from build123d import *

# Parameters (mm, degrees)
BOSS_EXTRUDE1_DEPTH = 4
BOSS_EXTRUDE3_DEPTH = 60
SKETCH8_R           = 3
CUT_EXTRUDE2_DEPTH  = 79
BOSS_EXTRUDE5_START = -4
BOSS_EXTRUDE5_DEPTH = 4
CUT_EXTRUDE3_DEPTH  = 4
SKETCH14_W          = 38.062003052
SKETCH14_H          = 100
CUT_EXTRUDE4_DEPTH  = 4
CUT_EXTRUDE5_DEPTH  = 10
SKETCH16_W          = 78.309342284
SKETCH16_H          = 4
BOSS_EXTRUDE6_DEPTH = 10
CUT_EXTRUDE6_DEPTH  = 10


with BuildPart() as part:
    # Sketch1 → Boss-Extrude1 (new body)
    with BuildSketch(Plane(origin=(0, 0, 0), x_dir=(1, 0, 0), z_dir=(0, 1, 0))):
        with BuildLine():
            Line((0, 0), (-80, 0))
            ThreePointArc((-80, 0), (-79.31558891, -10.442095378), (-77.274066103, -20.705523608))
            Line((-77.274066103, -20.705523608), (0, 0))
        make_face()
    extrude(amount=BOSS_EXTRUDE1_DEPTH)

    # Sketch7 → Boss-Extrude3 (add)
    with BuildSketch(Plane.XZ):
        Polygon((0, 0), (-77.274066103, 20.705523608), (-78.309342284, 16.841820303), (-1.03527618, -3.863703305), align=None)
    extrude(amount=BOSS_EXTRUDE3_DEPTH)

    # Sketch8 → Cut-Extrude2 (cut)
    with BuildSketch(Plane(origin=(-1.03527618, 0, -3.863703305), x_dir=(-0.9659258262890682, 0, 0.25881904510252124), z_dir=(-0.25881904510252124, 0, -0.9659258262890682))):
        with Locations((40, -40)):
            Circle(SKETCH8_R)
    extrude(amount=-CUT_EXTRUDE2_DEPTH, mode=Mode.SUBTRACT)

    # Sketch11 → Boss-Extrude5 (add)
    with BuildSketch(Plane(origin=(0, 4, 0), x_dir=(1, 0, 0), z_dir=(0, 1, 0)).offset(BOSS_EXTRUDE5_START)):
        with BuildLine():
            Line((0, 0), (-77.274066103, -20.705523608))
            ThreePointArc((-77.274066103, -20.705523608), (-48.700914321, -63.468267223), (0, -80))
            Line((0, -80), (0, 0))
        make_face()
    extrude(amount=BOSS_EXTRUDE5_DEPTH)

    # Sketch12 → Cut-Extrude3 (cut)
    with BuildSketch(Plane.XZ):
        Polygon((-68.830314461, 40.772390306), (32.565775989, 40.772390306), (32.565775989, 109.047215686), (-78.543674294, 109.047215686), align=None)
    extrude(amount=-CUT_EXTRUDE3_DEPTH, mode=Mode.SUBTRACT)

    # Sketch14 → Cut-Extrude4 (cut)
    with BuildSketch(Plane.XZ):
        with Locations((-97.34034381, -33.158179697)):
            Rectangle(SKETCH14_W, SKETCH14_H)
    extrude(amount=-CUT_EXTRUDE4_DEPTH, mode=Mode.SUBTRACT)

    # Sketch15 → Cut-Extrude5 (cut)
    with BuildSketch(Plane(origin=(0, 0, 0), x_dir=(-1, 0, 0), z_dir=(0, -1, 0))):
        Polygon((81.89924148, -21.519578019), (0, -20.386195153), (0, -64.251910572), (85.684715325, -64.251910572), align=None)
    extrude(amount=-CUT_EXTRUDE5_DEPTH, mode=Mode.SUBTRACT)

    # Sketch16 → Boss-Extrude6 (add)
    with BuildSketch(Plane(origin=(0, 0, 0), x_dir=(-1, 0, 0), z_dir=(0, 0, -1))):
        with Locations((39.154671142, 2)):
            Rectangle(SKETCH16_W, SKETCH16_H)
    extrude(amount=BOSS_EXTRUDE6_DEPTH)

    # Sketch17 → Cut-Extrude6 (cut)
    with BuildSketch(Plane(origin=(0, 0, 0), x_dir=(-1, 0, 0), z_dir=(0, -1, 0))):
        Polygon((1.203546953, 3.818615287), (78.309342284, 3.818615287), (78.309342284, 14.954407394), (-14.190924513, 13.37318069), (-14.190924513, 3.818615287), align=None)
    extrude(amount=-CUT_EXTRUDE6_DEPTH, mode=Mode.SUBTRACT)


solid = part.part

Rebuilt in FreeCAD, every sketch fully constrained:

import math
import FreeCAD as App
import Part
import Sketcher
Q = App.Units.Quantity

doc = App.newDocument("Part")
params = doc.addObject("Spreadsheet::Sheet", "Params")
for row, (alias, value) in enumerate([
    ("sketch1_radius", "80 mm"),
    ("pad1_length", "4 mm"),
    ("sketch2_length", "80 mm"),
    ("sketch2_length2", "4 mm"),
    ("pad2_length", "60 mm"),
    ("sketch3_diameter", "6 mm"),
    ("pocket1_length", "79 mm"),
    ("sketch4_radius", "80 mm"),
    ("pad3_length", "4 mm"),
    ("pocket2_length", "4 mm"),
    ("sketch6_height", "100 mm"),
    ("pocket3_length", "4 mm"),
    ("pocket4_length", "10 mm"),
    ("sketch8_height", "4 mm"),
    ("pad4_length", "10 mm"),
    ("pocket5_length", "10 mm"),
], start=1):
    params.set(f"A{row}", alias)
    params.set(f"B{row}", "=" + value)
    params.setAlias(f"B{row}", alias)

body = doc.addObject("PartDesign::Body", "Body")

sketch1 = doc.addObject("Sketcher::SketchObject", "Sketch")
body.addObject(sketch1)
sketch1.AttachmentSupport = (doc.XZ_Plane, [""])
sketch1.MapMode = "FlatFace"
sketch1.addGeometry([
    Part.LineSegment(App.Vector(0, 0, 0), App.Vector(-80, 0, 0)),
    Part.ArcOfCircle(Part.Circle(App.Vector(0, 0, 0), App.Vector(0, 0, 1), 80), math.radians(165), math.radians(180)),
    Part.LineSegment(App.Vector(-77.274066, 20.705524, 0), App.Vector(0, 0, 0)),
], False)
sketch1.addConstraint([
    Sketcher.Constraint("Coincident", 0, 2, 1, 2),
    Sketcher.Constraint("Coincident", 1, 1, 2, 1),
    Sketcher.Constraint("Coincident", 2, 2, 0, 1),
    Sketcher.Constraint("Horizontal", 0),
    Sketcher.Constraint("Coincident", 1, 3, -1, 1),
    Sketcher.Constraint("Coincident", 2, 2, -1, 1),
    Sketcher.Constraint("Radius", 1, 80.0),
    Sketcher.Constraint("Angle", 2, Q("-15 deg")),
])
sketch1.setExpression("Constraints[6]", "Params.sketch1_radius")
pad1 = doc.addObject("PartDesign::Pad", "Pad")
body.addObject(pad1)
pad1.Profile = sketch1
pad1.setExpression("Length", "Params.pad1_length")
pad1.Reversed = True

sketch2 = doc.addObject("Sketcher::SketchObject", "Sketch001")
body.addObject(sketch2)
sketch2.AttachmentSupport = (doc.XZ_Plane, [""])
sketch2.MapMode = "FlatFace"
sketch2.addGeometry([
    Part.LineSegment(App.Vector(0, 0, 0), App.Vector(-77.274066, 20.705524, 0)),
    Part.LineSegment(App.Vector(-77.274066, 20.705524, 0), App.Vector(-78.309342, 16.84182, 0)),
    Part.LineSegment(App.Vector(-78.309342, 16.84182, 0), App.Vector(-1.035276, -3.863703, 0)),
    Part.LineSegment(App.Vector(-1.035276, -3.863703, 0), App.Vector(0, 0, 0)),
], False)
sketch2.addConstraint([
    Sketcher.Constraint("Coincident", 0, 2, 1, 1),
    Sketcher.Constraint("Coincident", 1, 2, 2, 1),
    Sketcher.Constraint("Coincident", 2, 2, 3, 1),
    Sketcher.Constraint("Coincident", 3, 2, 0, 1),
    Sketcher.Constraint("Coincident", 3, 2, -1, 1),
    Sketcher.Constraint("Perpendicular", 0, 1),
    Sketcher.Constraint("Perpendicular", 1, 2),
    Sketcher.Constraint("Perpendicular", 2, 3),
    Sketcher.Constraint("Angle", 0, Q("165 deg")),
    Sketcher.Constraint("Distance", 0, 80.0),
    Sketcher.Constraint("Distance", 1, 4.0),
])
sketch2.setExpression("Constraints[9]", "Params.sketch2_length")
sketch2.setExpression("Constraints[10]", "Params.sketch2_length2")
pad2 = doc.addObject("PartDesign::Pad", "Pad001")
body.addObject(pad2)
pad2.Profile = sketch2
pad2.setExpression("Length", "Params.pad2_length")

sketch3 = doc.addObject("Sketcher::SketchObject", "Sketch002")
body.addObject(sketch3)
sketch3.Placement = App.Placement(App.Vector(-1.035276, 0, -3.863703), App.Rotation(App.Vector(-0.965925826, 0, 0.258819045), App.Vector(0, 0.999999999, 0), App.Vector(-0.258819045, 0, -0.965925826), "ZXY"))
sketch3.addGeometry(Part.Circle(App.Vector(40, -40, 0), App.Vector(0, 0, 1), 3), False)
sketch3.addConstraint([
    Sketcher.Constraint("Diameter", 0, 6.0),
    Sketcher.Constraint("DistanceX", -1, 1, 0, 3, 40.0),
    Sketcher.Constraint("DistanceY", 0, 3, -1, 1, 40.0),
])
sketch3.setExpression("Constraints[0]", "Params.sketch3_diameter")
pocket1 = doc.addObject("PartDesign::Pocket", "Pocket")
body.addObject(pocket1)
pocket1.Profile = sketch3
pocket1.setExpression("Length", "Params.pocket1_length")

sketch4 = doc.addObject("Sketcher::SketchObject", "Sketch003")
body.addObject(sketch4)
sketch4.AttachmentSupport = (doc.XZ_Plane, [""])
sketch4.MapMode = "FlatFace"
sketch4.addGeometry([
    Part.LineSegment(App.Vector(0, 0, 0), App.Vector(-77.274066, 20.705524, 0)),
    Part.ArcOfCircle(Part.Circle(App.Vector(0, 0, 0), App.Vector(0, 0, 1), 80), math.radians(90), math.radians(165)),
    Part.LineSegment(App.Vector(0, 80, 0), App.Vector(0, 0, 0)),
], False)
sketch4.addConstraint([
    Sketcher.Constraint("Coincident", 0, 2, 1, 2),
    Sketcher.Constraint("Coincident", 1, 1, 2, 1),
    Sketcher.Constraint("Coincident", 2, 2, 0, 1),
    Sketcher.Constraint("Vertical", 2),
    Sketcher.Constraint("Coincident", 1, 3, -1, 1),
    Sketcher.Constraint("Coincident", 2, 2, -1, 1),
    Sketcher.Constraint("Radius", 1, 80.0),
    Sketcher.Constraint("Angle", 0, Q("165 deg")),
])
sketch4.setExpression("Constraints[6]", "Params.sketch4_radius")
pad3 = doc.addObject("PartDesign::Pad", "Pad002")
body.addObject(pad3)
pad3.Profile = sketch4
pad3.setExpression("Length", "Params.pad3_length")
pad3.Reversed = True

sketch5 = doc.addObject("Sketcher::SketchObject", "Sketch004")
body.addObject(sketch5)
sketch5.AttachmentSupport = (doc.XZ_Plane, [""])
sketch5.MapMode = "FlatFace"
sketch5.addGeometry([
    Part.LineSegment(App.Vector(-68.830314, 40.77239, 0), App.Vector(32.565776, 40.77239, 0)),
    Part.LineSegment(App.Vector(32.565776, 40.77239, 0), App.Vector(32.565776, 109.047216, 0)),
    Part.LineSegment(App.Vector(32.565776, 109.047216, 0), App.Vector(-78.543674, 109.047216, 0)),
    Part.LineSegment(App.Vector(-78.543674, 109.047216, 0), App.Vector(-68.830314, 40.77239, 0)),
], False)
sketch5.addConstraint([
    Sketcher.Constraint("Coincident", 0, 2, 1, 1),
    Sketcher.Constraint("Coincident", 1, 2, 2, 1),
    Sketcher.Constraint("Coincident", 2, 2, 3, 1),
    Sketcher.Constraint("Coincident", 3, 2, 0, 1),
    Sketcher.Constraint("Horizontal", 0),
    Sketcher.Constraint("Vertical", 1),
    Sketcher.Constraint("Horizontal", 2),
    Sketcher.Constraint("DistanceX", 0, 1, 0, 2, 101.39609),
    Sketcher.Constraint("DistanceX", 2, 2, 2, 1, 111.10945),
    Sketcher.Constraint("DistanceY", 1, 1, 1, 2, 68.274825),
    Sketcher.Constraint("DistanceY", -1, 1, 0, 2, 40.77239),
    Sketcher.Constraint("DistanceX", -1, 1, 0, 2, 32.565776),
])
pocket2 = doc.addObject("PartDesign::Pocket", "Pocket001")
body.addObject(pocket2)
pocket2.Profile = sketch5
pocket2.setExpression("Length", "Params.pocket2_length")

sketch6 = doc.addObject("Sketcher::SketchObject", "Sketch005")
body.addObject(sketch6)
sketch6.AttachmentSupport = (doc.XZ_Plane, [""])
sketch6.MapMode = "FlatFace"
sketch6.addGeometry([
    Part.LineSegment(App.Vector(-116.371345, 16.84182, 0), App.Vector(-116.371345, -83.15818, 0)),
    Part.LineSegment(App.Vector(-116.371345, -83.15818, 0), App.Vector(-78.309342, -83.15818, 0)),
    Part.LineSegment(App.Vector(-78.309342, -83.15818, 0), App.Vector(-78.309342, 16.84182, 0)),
    Part.LineSegment(App.Vector(-78.309342, 16.84182, 0), App.Vector(-116.371345, 16.84182, 0)),
], False)
sketch6.addConstraint([
    Sketcher.Constraint("Coincident", 0, 2, 1, 1),
    Sketcher.Constraint("Coincident", 1, 2, 2, 1),
    Sketcher.Constraint("Coincident", 2, 2, 3, 1),
    Sketcher.Constraint("Coincident", 3, 2, 0, 1),
    Sketcher.Constraint("Vertical", 0),
    Sketcher.Constraint("Horizontal", 1),
    Sketcher.Constraint("Vertical", 2),
    Sketcher.Constraint("Horizontal", 3),
    Sketcher.Constraint("DistanceY", 0, 2, 0, 1, 100.0),
    Sketcher.Constraint("DistanceX", 1, 1, 1, 2, 38.062003),
    Sketcher.Constraint("DistanceY", 0, 2, -1, 1, 83.15818),
    Sketcher.Constraint("DistanceX", 0, 2, -1, 1, 116.371345),
])
sketch6.setExpression("Constraints[8]", "Params.sketch6_height")
pocket3 = doc.addObject("PartDesign::Pocket", "Pocket002")
body.addObject(pocket3)
pocket3.Profile = sketch6
pocket3.setExpression("Length", "Params.pocket3_length")

sketch7 = doc.addObject("Sketcher::SketchObject", "Sketch006")
body.addObject(sketch7)
sketch7.AttachmentSupport = (doc.XZ_Plane, [""])
sketch7.MapMode = "FlatFace"
sketch7.addGeometry([
    Part.LineSegment(App.Vector(-81.899241, 21.519578, 0), App.Vector(0, 20.386195, 0)),
    Part.LineSegment(App.Vector(0, 20.386195, 0), App.Vector(0, 64.251911, 0)),
    Part.LineSegment(App.Vector(0, 64.251911, 0), App.Vector(-85.684715, 64.251911, 0)),
    Part.LineSegment(App.Vector(-85.684715, 64.251911, 0), App.Vector(-81.899241, 21.519578, 0)),
], False)
sketch7.addConstraint([
    Sketcher.Constraint("Coincident", 0, 2, 1, 1),
    Sketcher.Constraint("Coincident", 1, 2, 2, 1),
    Sketcher.Constraint("Coincident", 2, 2, 3, 1),
    Sketcher.Constraint("Coincident", 3, 2, 0, 1),
    Sketcher.Constraint("Vertical", 1),
    Sketcher.Constraint("Horizontal", 2),
    Sketcher.Constraint("PointOnObject", 0, 2, -2),
    Sketcher.Constraint("DistanceX", 2, 2, 2, 1, 85.684715),
    Sketcher.Constraint("DistanceY", 1, 1, 1, 2, 43.865715),
    Sketcher.Constraint("DistanceY", -1, 1, 1, 2, 64.251911),
    Sketcher.Constraint("DistanceX", 3, 2, -1, 1, 81.899241),
    Sketcher.Constraint("DistanceY", -1, 1, 3, 2, 21.519578),
])
pocket4 = doc.addObject("PartDesign::Pocket", "Pocket003")
body.addObject(pocket4)
pocket4.Profile = sketch7
pocket4.setExpression("Length", "Params.pocket4_length")

sketch8 = doc.addObject("Sketcher::SketchObject", "Sketch007")
body.addObject(sketch8)
sketch8.AttachmentSupport = (doc.XY_Plane, [""])
sketch8.MapMode = "FlatFace"
sketch8.addGeometry([
    Part.LineSegment(App.Vector(0, 4, 0), App.Vector(0, 0, 0)),
    Part.LineSegment(App.Vector(0, 0, 0), App.Vector(-78.309342, 0, 0)),
    Part.LineSegment(App.Vector(-78.309342, 0, 0), App.Vector(-78.309342, 4, 0)),
    Part.LineSegment(App.Vector(-78.309342, 4, 0), App.Vector(0, 4, 0)),
], False)
sketch8.addConstraint([
    Sketcher.Constraint("Coincident", 0, 2, 1, 1),
    Sketcher.Constraint("Coincident", 1, 2, 2, 1),
    Sketcher.Constraint("Coincident", 2, 2, 3, 1),
    Sketcher.Constraint("Coincident", 3, 2, 0, 1),
    Sketcher.Constraint("Vertical", 0),
    Sketcher.Constraint("Horizontal", 1),
    Sketcher.Constraint("Vertical", 2),
    Sketcher.Constraint("Horizontal", 3),
    Sketcher.Constraint("Coincident", 0, 2, -1, 1),
    Sketcher.Constraint("DistanceY", 0, 2, 0, 1, 4.0),
    Sketcher.Constraint("DistanceX", 1, 2, 1, 1, 78.309342),
])
sketch8.setExpression("Constraints[9]", "Params.sketch8_height")
pad4 = doc.addObject("PartDesign::Pad", "Pad003")
body.addObject(pad4)
pad4.Profile = sketch8
pad4.setExpression("Length", "Params.pad4_length")
pad4.Reversed = True

sketch9 = doc.addObject("Sketcher::SketchObject", "Sketch008")
body.addObject(sketch9)
sketch9.AttachmentSupport = (doc.XZ_Plane, [""])
sketch9.MapMode = "FlatFace"
sketch9.addGeometry([
    Part.LineSegment(App.Vector(-78.309342, -3.818615, 0), App.Vector(-78.309342, -14.954407, 0)),
    Part.LineSegment(App.Vector(-78.309342, -14.954407, 0), App.Vector(14.190925, -13.373181, 0)),
    Part.LineSegment(App.Vector(14.190925, -13.373181, 0), App.Vector(14.190925, -3.818615, 0)),
    Part.LineSegment(App.Vector(14.190925, -3.818615, 0), App.Vector(-78.309342, -3.818615, 0)),
], False)
sketch9.addConstraint([
    Sketcher.Constraint("Coincident", 0, 2, 1, 1),
    Sketcher.Constraint("Coincident", 1, 2, 2, 1),
    Sketcher.Constraint("Coincident", 2, 2, 3, 1),
    Sketcher.Constraint("Coincident", 3, 2, 0, 1),
    Sketcher.Constraint("Vertical", 0),
    Sketcher.Constraint("Vertical", 2),
    Sketcher.Constraint("Horizontal", 3),
    Sketcher.Constraint("Distance", 1, 92.513781),
    Sketcher.Constraint("DistanceX", 3, 2, 3, 1, 92.500267),
    Sketcher.Constraint("DistanceY", 0, 2, 0, 1, 11.135792),
    Sketcher.Constraint("DistanceY", 1, 2, -1, 1, 13.373181),
    Sketcher.Constraint("DistanceX", 0, 2, -1, 1, 78.309342),
])
pocket5 = doc.addObject("PartDesign::Pocket", "Pocket004")
body.addObject(pocket5)
pocket5.Profile = sketch9
pocket5.setExpression("Length", "Params.pocket5_length")

doc.recompute()
